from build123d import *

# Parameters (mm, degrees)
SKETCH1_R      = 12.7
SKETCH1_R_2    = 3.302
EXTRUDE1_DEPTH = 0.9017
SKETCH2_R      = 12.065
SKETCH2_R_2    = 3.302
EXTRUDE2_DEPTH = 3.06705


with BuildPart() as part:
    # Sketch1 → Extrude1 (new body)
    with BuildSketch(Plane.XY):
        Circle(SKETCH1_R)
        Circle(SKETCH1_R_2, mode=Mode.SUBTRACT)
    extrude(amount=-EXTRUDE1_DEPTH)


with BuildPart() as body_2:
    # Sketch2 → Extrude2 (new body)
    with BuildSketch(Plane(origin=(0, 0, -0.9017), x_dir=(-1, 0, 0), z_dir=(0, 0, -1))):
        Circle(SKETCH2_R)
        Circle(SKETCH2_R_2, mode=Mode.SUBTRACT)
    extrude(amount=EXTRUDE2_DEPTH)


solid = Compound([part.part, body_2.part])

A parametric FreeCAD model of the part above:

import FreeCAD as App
import Part
import Sketcher
Q = App.Units.Quantity

doc = App.newDocument("Part")
body = doc.addObject("PartDesign::Body", "Body")

# Sketch on XY plane
sketch1 = doc.addObject("Sketcher::SketchObject", "Sketch")
body.addObject(sketch1)
sketch1.AttachmentSupport = (doc.XY_Plane, [""])
sketch1.MapMode = "FlatFace"
sketch1.addGeometry([
    Part.Circle(App.Vector(0, 0, 0), App.Vector(0, 0, 1), 12.7),
    Part.Circle(App.Vector(0, 0, 0), App.Vector(0, 0, 1), 3.302),
], False)
sketch1.addConstraint([
    Sketcher.Constraint("Coincident", 0, 3, -1, 1),
    Sketcher.Constraint("Coincident", 1, 3, -1, 1),
    Sketcher.Constraint("Diameter", 0, Q("1 in")),
    Sketcher.Constraint("Diameter", 1, Q("0.26 in")),
])
pad1 = doc.addObject("PartDesign::Pad", "Pad")
body.addObject(pad1)
pad1.Profile = sketch1
pad1.Length = Q("0.0355 in")
pad1.Reversed = True
body2 = doc.addObject("PartDesign::Body", "Body001")

# Sketch on XY plane
sketch2 = doc.addObject("Sketcher::SketchObject", "Sketch001")
body2.addObject(sketch2)
sketch2.AttachmentSupport = (doc.getObject("XY_Plane001"), [""])
sketch2.MapMode = "FlatFace"
sketch2.AttachmentOffset = App.Placement(App.Vector(0, 0, -0.0355 * 25.4), App.Rotation())
sketch2.addGeometry([
    Part.Circle(App.Vector(0, 0, 0), App.Vector(0, 0, 1), 12.065),
    Part.Circle(App.Vector(0, 0, 0), App.Vector(0, 0, 1), 3.302),
], False)
sketch2.addConstraint([
    Sketcher.Constraint("Coincident", 0, 3, -1, 1),
    Sketcher.Constraint("Coincident", 1, 3, -1, 1),
    Sketcher.Constraint("Diameter", 0, Q("0.95 in")),
    Sketcher.Constraint("Diameter", 1, Q("0.26 in")),
])
pad2 = doc.addObject("PartDesign::Pad", "Pad001")
body2.addObject(pad2)
pad2.Profile = sketch2
pad2.Length = 3.06705
pad2.Reversed = True

doc.recompute()
